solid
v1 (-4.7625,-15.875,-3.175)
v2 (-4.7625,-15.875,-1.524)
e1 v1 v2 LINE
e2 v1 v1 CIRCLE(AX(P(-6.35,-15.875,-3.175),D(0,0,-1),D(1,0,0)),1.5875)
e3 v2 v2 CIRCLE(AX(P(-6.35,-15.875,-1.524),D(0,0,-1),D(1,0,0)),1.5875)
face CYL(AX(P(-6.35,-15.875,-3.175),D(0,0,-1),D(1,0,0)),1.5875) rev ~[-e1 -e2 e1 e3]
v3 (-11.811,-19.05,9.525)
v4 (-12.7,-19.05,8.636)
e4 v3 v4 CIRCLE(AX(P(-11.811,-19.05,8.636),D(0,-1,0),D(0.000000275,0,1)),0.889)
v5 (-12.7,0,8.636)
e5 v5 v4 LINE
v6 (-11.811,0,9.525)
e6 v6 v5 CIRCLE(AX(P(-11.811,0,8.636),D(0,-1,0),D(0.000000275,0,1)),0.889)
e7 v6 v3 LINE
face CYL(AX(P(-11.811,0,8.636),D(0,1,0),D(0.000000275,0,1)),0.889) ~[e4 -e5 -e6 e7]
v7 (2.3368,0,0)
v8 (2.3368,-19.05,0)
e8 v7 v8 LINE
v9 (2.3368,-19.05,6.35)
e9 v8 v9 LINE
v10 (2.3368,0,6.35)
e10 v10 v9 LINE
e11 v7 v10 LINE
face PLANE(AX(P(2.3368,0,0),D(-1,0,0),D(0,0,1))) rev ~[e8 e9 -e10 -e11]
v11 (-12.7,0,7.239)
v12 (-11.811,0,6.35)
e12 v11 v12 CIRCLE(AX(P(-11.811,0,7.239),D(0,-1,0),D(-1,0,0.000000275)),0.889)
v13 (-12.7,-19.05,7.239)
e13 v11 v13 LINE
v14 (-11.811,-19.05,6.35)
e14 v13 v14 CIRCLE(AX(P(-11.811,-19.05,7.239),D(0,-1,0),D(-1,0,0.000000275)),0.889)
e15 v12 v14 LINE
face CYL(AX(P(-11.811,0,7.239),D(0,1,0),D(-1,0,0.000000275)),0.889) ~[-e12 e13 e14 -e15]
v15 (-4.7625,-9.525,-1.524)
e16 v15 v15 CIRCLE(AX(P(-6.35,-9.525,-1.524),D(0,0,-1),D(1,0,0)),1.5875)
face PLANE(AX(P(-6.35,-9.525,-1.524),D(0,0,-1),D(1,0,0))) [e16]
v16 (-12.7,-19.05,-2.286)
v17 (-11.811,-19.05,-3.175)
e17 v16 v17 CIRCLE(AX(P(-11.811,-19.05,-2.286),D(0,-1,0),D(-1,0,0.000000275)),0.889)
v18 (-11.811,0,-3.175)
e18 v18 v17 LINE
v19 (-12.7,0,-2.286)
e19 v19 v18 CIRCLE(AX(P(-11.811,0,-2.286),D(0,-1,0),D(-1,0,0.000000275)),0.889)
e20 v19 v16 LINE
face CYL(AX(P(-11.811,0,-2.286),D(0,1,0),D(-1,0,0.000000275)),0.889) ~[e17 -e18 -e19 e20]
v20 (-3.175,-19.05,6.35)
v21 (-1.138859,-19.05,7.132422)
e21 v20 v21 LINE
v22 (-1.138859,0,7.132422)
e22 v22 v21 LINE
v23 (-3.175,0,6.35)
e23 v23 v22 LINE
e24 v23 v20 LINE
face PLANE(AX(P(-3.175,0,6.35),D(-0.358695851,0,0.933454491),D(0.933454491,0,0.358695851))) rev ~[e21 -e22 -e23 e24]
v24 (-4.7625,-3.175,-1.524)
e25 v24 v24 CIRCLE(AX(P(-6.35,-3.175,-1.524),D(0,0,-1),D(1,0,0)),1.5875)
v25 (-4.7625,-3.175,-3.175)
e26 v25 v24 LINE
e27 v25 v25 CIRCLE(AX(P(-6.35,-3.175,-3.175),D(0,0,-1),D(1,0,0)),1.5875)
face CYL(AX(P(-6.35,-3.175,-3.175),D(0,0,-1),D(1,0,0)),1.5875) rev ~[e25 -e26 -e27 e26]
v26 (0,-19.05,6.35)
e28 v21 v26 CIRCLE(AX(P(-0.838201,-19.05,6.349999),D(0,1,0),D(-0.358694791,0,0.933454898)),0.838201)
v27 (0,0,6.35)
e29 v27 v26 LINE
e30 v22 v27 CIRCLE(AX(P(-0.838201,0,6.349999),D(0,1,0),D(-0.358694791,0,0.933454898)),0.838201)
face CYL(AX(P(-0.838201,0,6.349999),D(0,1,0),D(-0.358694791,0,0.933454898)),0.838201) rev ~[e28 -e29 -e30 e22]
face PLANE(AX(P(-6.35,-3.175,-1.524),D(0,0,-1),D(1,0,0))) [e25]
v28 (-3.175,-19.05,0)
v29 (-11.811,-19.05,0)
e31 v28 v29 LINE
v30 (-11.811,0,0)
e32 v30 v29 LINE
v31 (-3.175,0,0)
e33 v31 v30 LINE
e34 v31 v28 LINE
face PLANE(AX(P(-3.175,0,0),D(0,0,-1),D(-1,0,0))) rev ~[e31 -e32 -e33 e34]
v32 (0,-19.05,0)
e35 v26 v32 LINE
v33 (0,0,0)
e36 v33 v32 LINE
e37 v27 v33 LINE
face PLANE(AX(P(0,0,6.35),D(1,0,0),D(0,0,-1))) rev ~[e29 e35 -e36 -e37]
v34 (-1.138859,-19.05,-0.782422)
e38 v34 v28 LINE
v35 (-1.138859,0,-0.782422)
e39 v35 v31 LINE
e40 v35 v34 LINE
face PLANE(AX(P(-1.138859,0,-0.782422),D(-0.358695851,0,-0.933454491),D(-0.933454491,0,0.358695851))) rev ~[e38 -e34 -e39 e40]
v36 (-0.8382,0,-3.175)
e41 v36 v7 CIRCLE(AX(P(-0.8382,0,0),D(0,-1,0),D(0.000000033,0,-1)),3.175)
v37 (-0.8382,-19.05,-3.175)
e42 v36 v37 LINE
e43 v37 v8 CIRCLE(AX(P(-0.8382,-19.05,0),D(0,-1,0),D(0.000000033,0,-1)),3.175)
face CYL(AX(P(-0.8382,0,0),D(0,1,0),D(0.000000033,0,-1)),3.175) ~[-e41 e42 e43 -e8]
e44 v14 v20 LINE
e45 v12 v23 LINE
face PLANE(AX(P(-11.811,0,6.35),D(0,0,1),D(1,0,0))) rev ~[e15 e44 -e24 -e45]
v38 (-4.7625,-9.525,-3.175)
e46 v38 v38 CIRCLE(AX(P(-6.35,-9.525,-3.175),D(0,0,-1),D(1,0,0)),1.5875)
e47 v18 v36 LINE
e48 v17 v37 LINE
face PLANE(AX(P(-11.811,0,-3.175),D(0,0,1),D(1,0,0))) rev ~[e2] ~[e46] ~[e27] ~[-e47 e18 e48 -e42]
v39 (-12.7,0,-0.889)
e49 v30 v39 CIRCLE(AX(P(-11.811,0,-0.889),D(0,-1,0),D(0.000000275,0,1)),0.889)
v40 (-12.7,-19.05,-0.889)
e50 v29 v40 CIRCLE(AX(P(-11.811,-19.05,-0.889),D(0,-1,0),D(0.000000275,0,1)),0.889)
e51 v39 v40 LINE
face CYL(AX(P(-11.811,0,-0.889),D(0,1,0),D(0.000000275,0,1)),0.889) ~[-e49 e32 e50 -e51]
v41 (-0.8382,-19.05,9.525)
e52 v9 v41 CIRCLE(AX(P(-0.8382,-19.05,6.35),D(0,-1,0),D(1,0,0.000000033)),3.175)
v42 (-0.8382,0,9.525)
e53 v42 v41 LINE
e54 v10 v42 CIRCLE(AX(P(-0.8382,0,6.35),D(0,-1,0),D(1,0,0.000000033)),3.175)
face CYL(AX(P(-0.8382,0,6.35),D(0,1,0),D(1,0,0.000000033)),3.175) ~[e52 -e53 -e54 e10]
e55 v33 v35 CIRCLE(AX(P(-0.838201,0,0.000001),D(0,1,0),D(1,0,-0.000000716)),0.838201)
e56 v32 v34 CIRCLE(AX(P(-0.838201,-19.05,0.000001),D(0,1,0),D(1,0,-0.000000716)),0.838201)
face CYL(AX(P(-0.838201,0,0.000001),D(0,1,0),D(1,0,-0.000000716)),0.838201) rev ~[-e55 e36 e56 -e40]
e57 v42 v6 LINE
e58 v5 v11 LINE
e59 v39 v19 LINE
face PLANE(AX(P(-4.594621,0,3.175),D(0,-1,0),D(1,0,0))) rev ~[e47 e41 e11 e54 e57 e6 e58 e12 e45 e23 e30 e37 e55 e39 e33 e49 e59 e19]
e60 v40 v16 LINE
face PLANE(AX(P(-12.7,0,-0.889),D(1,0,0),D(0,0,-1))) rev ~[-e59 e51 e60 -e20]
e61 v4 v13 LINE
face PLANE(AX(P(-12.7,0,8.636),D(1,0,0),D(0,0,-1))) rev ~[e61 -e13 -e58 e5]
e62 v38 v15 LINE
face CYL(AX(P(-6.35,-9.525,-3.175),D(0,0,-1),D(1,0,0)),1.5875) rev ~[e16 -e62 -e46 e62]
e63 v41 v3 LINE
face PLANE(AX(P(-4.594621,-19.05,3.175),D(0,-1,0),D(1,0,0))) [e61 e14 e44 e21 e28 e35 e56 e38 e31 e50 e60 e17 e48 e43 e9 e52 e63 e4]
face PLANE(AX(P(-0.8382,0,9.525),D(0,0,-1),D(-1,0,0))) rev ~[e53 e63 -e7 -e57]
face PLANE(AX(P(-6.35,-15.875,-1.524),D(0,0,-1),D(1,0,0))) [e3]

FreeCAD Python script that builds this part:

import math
import FreeCAD as App
import Part
import Sketcher
Q = App.Units.Quantity

doc = App.newDocument("Part")
body = doc.addObject("PartDesign::Body", "Body")

# Sketch on XZ plane
sketch1 = body.newObject("Sketcher::SketchObject", "Sketch")
sketch1.AttachmentSupport = (doc.getObject("XZ_Plane"), [""])
sketch1.MapMode = "FlatFace"
sketch1.addGeometry([
    Part.LineSegment(App.Vector(0, 6.3, 0), App.Vector(0, 0, 0)),  # 0
    Part.ArcOfCircle(Part.Circle(App.Vector(-0.8, 0, 0), App.Vector(0, 0, 1), 0.8), math.radians(-111), math.radians(0)),  # 1
    Part.LineSegment(App.Vector(-1.1, -0.8, 0), App.Vector(-3.2, 0, 0)),  # 2
    Part.LineSegment(App.Vector(-3.2, 0, 0), App.Vector(-11.8, 0, 0)),  # 3
    Part.ArcOfCircle(Part.Circle(App.Vector(-11.8, -0.9, 0), App.Vector(0, 0, 1), 0.9), math.radians(90), math.radians(180)),  # 4
    Part.LineSegment(App.Vector(-12.7, -0.9, 0), App.Vector(-12.7, -2.3, 0)),  # 5
    Part.ArcOfCircle(Part.Circle(App.Vector(-11.8, -2.3, 0), App.Vector(0, 0, 1), 0.9), math.radians(180), math.radians(270)),  # 6
    Part.LineSegment(App.Vector(-11.8, -3.2, 0), App.Vector(-0.8, -3.2, 0)),  # 7
    Part.ArcOfCircle(Part.Circle(App.Vector(-0.8, 0, 0), App.Vector(0, 0, 1), 3.2), math.radians(-90), math.radians(0)),  # 8
    Part.LineSegment(App.Vector(2.3, 0, 0), App.Vector(2.3, 6.3, 0)),  # 9
    Part.ArcOfCircle(Part.Circle(App.Vector(-0.8, 6.3, 0), App.Vector(0, 0, 1), 3.2), math.radians(0), math.radians(90)),  # 10
    Part.LineSegment(App.Vector(-0.8, 9.5, 0), App.Vector(-11.8, 9.5, 0)),  # 11
    Part.ArcOfCircle(Part.Circle(App.Vector(-11.8, 8.6, 0), App.Vector(0, 0, 1), 0.9), math.radians(90), math.radians(180)),  # 12
    Part.LineSegment(App.Vector(-12.7, 8.6, 0), App.Vector(-12.7, 7.2, 0)),  # 13
    Part.ArcOfCircle(Part.Circle(App.Vector(-11.8, 7.2, 0), App.Vector(0, 0, 1), 0.9), math.radians(180), math.radians(270)),  # 14
    Part.LineSegment(App.Vector(-11.8, 6.3, 0), App.Vector(-3.2, 6.3, 0)),  # 15
    Part.LineSegment(App.Vector(-3.2, 6.3, 0), App.Vector(-1.1, 7.1, 0)),  # 16
    Part.ArcOfCircle(Part.Circle(App.Vector(-0.8, 6.3, 0), App.Vector(0, 0, 1), 0.8), math.radians(0), math.radians(111)),  # 17
], False)
sketch1.addConstraint([
    Sketcher.Constraint("Tangent", 0, 2, 1, 2),
    Sketcher.Constraint("Tangent", 1, 1, 2, 1),
    Sketcher.Constraint("Coincident", 2, 2, 3, 1),
    Sketcher.Constraint("Tangent", 3, 2, 4, 1),
    Sketcher.Constraint("Tangent", 4, 2, 5, 1),
    Sketcher.Constraint("Tangent", 5, 2, 6, 1),
    Sketcher.Constraint("Tangent", 6, 2, 7, 1),
    Sketcher.Constraint("Tangent", 7, 2, 8, 1),
    Sketcher.Constraint("Tangent", 8, 2, 9, 1),
    Sketcher.Constraint("Tangent", 9, 2, 10, 1),
    Sketcher.Constraint("Tangent", 10, 2, 11, 1),
    Sketcher.Constraint("Tangent", 11, 2, 12, 1),
    Sketcher.Constraint("Tangent", 12, 2, 13, 1),
    Sketcher.Constraint("Tangent", 13, 2, 14, 1),
    Sketcher.Constraint("Tangent", 14, 2, 15, 1),
    Sketcher.Constraint("Coincident", 15, 2, 16, 1),
    Sketcher.Constraint("Tangent", 16, 2, 17, 2),
    Sketcher.Constraint("Tangent", 17, 1, 0, 1),
    Sketcher.Constraint("Vertical", 0),
    Sketcher.Constraint("Horizontal", 3),
    Sketcher.Constraint("Vertical", 5),
    Sketcher.Constraint("Horizontal", 7),
    Sketcher.Constraint("Vertical", 9),
    Sketcher.Constraint("Horizontal", 11),
    Sketcher.Constraint("Vertical", 13),
    Sketcher.Constraint("Horizontal", 15),
    Sketcher.Constraint("Coincident", 0, 2, -1, 1),
    Sketcher.Constraint("Coincident", 8, 3, 1, 3),
    Sketcher.Constraint("Coincident", 17, 3, 10, 3),
    Sketcher.Constraint("Equal", 4, 6),
    Sketcher.Constraint("Equal", 8, 10),
    Sketcher.Constraint("Equal", 6, 12),
    Sketcher.Constraint("Equal", 12, 14),
    Sketcher.Constraint("PointOnObject", 2, 2, -1),
    Sketcher.Constraint("Horizontal", 9, 2, 14, 2),
    Sketcher.Constraint("Vertical", 6, 3, 12, 3),
    Sketcher.Constraint("Vertical", 2, 2, 15, 2),
    Sketcher.Constraint("Radius", 1, Q("0.033 in")),
    Sketcher.Constraint("Radius", 4, Q("0.035 in")),
    Sketcher.Constraint("Radius", 8, Q("0.125 in")),
    Sketcher.Constraint("DistanceX", 3, 2, 3, 1, Q("0.34 in")),
    Sketcher.Constraint("DistanceY", 0, 2, 0, 1, Q("0.25 in")),
    Sketcher.Constraint("DistanceX", 4, 2, -1, 1, Q("0.5 in")),
])
pad1 = body.newObject("PartDesign::Pad", "Pad")
pad1.Profile = sketch1
pad1.Length = Q("0.75 in")

# Sketch on XY plane
sketch2 = body.newObject("Sketcher::SketchObject", "Sketch001")
sketch2.AttachmentSupport = (doc.getObject("XY_Plane"), [""])
sketch2.MapMode = "FlatFace"
sketch2.AttachmentOffset = App.Placement(App.Vector(0, 0, -0.125 * 25.4), App.Rotation())
sketch2.addGeometry([
    Part.Circle(App.Vector(-6.3, -15.9, 0), App.Vector(0, 0, 1), 1.6),
    Part.Circle(App.Vector(-6.3, -3.2, 0), App.Vector(0, 0, 1), 1.6),
    Part.Circle(App.Vector(-6.3, -9.5, 0), App.Vector(0, 0, 1), 1.6),
], False)
sketch2.addConstraint([
    Sketcher.Constraint("Equal", 0, 1),
    Sketcher.Constraint("Equal", 1, 2),
    Sketcher.Constraint("Vertical", 0, 3, 1, 3),
    Sketcher.Constraint("Vertical", 1, 3, 2, 3),
    Sketcher.Constraint("Diameter", 0, Q("0.125 in")),
    Sketcher.Constraint("DistanceY", 0, 3, 1, 3, Q("0.5 in")),
    Sketcher.Constraint("DistanceX", 0, 3, -1, 1, Q("0.25 in")),
    Sketcher.Constraint("DistanceY", 0, 3, 2, 3, Q("0.25 in")),
    Sketcher.Constraint("DistanceY", 0, 3, -1, 1, Q("0.625 in")),
])
pocket1 = body.newObject("PartDesign::Pocket", "Pocket")
pocket1.Profile = sketch2
pocket1.Length = Q("0.065 in")
pocket1.Reversed = True

doc.recompute()
